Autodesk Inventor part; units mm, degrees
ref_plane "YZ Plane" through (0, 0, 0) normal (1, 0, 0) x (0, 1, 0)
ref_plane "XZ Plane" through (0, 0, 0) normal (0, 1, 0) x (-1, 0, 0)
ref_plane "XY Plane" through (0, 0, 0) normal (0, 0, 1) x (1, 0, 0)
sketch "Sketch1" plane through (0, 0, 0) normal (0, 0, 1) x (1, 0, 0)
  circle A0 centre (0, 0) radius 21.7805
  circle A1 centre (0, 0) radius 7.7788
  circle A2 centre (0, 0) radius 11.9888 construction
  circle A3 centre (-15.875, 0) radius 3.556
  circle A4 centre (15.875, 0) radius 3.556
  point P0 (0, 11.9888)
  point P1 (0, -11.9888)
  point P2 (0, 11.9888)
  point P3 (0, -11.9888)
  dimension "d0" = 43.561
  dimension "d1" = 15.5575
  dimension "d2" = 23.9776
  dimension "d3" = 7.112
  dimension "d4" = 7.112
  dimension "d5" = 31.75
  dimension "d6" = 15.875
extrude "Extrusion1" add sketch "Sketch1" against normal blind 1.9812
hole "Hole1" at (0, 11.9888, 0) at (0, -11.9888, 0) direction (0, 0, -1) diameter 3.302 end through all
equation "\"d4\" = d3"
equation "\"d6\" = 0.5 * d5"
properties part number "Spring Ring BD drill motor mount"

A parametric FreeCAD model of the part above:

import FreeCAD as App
import Part
import Sketcher
Q = App.Units.Quantity

doc = App.newDocument("Part")
body = doc.addObject("PartDesign::Body", "Body")

# Sketch on XY plane
sketch1 = doc.addObject("Sketcher::SketchObject", "Sketch")
body.addObject(sketch1)
sketch1.AttachmentSupport = (doc.XY_Plane, [""])
sketch1.MapMode = "FlatFace"
sketch1.addGeometry([
    Part.Circle(App.Vector(0, 0, 0), App.Vector(0, 0, 1), 21.8),
    Part.Circle(App.Vector(-15.9, 0, 0), App.Vector(0, 0, 1), 3.6),
    Part.Circle(App.Vector(0, 0, 0), App.Vector(0, 0, 1), 7.8),
    Part.Circle(App.Vector(15.9, 0, 0), App.Vector(0, 0, 1), 3.6),
], False)
sketch1.addConstraint([
    Sketcher.Constraint("Coincident", 0, 3, -1, 1),
    Sketcher.Constraint("Coincident", 2, 3, -1, 1),
    Sketcher.Constraint("Equal", 1, 3),
    Sketcher.Constraint("Symmetric", 1, 3, 3, 3, -1, 1),
    Sketcher.Constraint("PointOnObject", 1, 3, -1),
    Sketcher.Constraint("Diameter", 1, Q("0.28 in")),
    Sketcher.Constraint("Diameter", 0, Q("1.715 in")),
    Sketcher.Constraint("Diameter", 2, Q("0.6125 in")),
    Sketcher.Constraint("DistanceX", 1, 3, 3, 3, Q("1.25 in")),
])
pad1 = doc.addObject("PartDesign::Pad", "Pad")
body.addObject(pad1)
pad1.Profile = sketch1
pad1.Length = Q("0.078 in")
pad1.Reversed = True

# Sketch on XY plane
sketch2 = doc.addObject("Sketcher::SketchObject", "Sketch001")
body.addObject(sketch2)
sketch2.AttachmentSupport = (doc.XY_Plane, [""])
sketch2.MapMode = "FlatFace"
sketch2.addGeometry([
    Part.Circle(App.Vector(0, 12, 0), App.Vector(0, 0, 1), 1.7),
    Part.Circle(App.Vector(0, -12, 0), App.Vector(0, 0, 1), 1.7),
], False)
sketch2.addConstraint([
    Sketcher.Constraint("Equal", 0, 1),
    Sketcher.Constraint("Symmetric", 0, 3, 1, 3, -1, 1),
    Sketcher.Constraint("PointOnObject", 0, 3, -2),
    Sketcher.Constraint("Diameter", 0, Q("0.13 in")),
    Sketcher.Constraint("DistanceY", -1, 1, 0, 3, Q("0.472 in")),
])
doc.recompute()
hole = doc.addObject("PartDesign::Hole", "Hole")
body.addObject(hole)
hole.Profile = sketch2
hole.ThreadType = "None"
hole.Diameter = Q("0.13 in")
hole.DepthType = "ThroughAll"

doc.recompute()
